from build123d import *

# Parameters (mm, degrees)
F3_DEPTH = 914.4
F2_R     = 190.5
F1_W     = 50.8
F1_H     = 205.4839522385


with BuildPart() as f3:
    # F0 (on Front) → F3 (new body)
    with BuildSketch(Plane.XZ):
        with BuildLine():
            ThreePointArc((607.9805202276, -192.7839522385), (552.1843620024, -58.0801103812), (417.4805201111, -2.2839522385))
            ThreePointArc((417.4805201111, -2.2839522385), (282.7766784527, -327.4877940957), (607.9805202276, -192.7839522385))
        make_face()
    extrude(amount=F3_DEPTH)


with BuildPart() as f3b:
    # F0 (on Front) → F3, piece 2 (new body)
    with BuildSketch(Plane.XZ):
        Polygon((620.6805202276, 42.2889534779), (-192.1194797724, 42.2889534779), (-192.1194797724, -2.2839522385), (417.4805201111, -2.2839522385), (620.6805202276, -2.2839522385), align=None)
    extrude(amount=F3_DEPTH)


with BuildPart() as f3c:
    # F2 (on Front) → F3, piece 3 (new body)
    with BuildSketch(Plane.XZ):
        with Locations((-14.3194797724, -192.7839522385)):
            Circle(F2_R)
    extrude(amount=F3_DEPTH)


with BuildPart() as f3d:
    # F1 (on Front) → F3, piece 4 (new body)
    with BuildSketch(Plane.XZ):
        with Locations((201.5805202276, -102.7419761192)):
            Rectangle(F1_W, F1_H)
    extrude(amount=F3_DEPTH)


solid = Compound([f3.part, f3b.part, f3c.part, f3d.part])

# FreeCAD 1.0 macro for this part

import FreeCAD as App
import Part
import Sketcher

V = App.Vector
Q = App.Units.Quantity


def add_polygon(sketch, points):
    """Adds a closed chain of lines whose ends are joined by coincident constraints."""
    first, n = sketch.GeometryCount, len(points)
    for a, b in zip(points, points[1:] + points[:1]):
        sketch.addGeometry(Part.LineSegment(App.Vector(*a, 0), App.Vector(*b, 0)), False)
    for i in range(n):
        sketch.addConstraint(Sketcher.Constraint("Coincident", first + i, 2, first + (i + 1) % n, 1))

doc = App.newDocument("Part")
body = doc.addObject("PartDesign::Body", "Body")

sketch1 = body.newObject("Sketcher::SketchObject", "Sketch")
sketch1.AttachmentSupport = (doc.getObject("XZ_Plane"), [""])
sketch1.MapMode = "FlatFace"
sketch1.addGeometry(Part.Circle(V(417, -193, 0), V(0, 0, 1), 190), False)
sketch1.addConstraint([
    Sketcher.Constraint("Diameter", 0, Q("15 in")),
    Sketcher.Constraint("DistanceX", -1, 1, 0, 3, 417.48052),
    Sketcher.Constraint("DistanceY", 0, 3, -1, 1, 192.783952),
])
pad1 = body.newObject("PartDesign::Pad", "Pad")
pad1.Profile = sketch1
pad1.Length = Q("36 in")
body2 = doc.addObject("PartDesign::Body", "Body001")

sketch2 = body2.newObject("Sketcher::SketchObject", "Sketch001")
sketch2.AttachmentSupport = (doc.getObject("XZ_Plane001"), [""])
sketch2.MapMode = "FlatFace"
add_polygon(sketch2, [(621, 42), (-192, 42), (-192, -2), (621, -2)])
sketch2.addConstraint([
    Sketcher.Constraint("Horizontal", 0),
    Sketcher.Constraint("Vertical", 1),
    Sketcher.Constraint("Horizontal", 2),
    Sketcher.Constraint("Vertical", 3),
    Sketcher.Constraint("DistanceX", 0, 2, 0, 1, Q("32 in")),
    Sketcher.Constraint("DistanceY", 1, 2, 1, 1, 44.572906),
    Sketcher.Constraint("DistanceX", 0, 2, -1, 1, 192.11948),
    Sketcher.Constraint("DistanceY", -1, 1, 0, 2, 42.288953),
])
pad2 = body2.newObject("PartDesign::Pad", "Pad001")
pad2.Profile = sketch2
pad2.Length = Q("36 in")
body3 = doc.addObject("PartDesign::Body", "Body002")

sketch3 = body3.newObject("Sketcher::SketchObject", "Sketch002")
sketch3.AttachmentSupport = (doc.getObject("XZ_Plane002"), [""])
sketch3.MapMode = "FlatFace"
sketch3.addGeometry(Part.Circle(V(-14, -193, 0), V(0, 0, 1), 190), False)
sketch3.addConstraint([
    Sketcher.Constraint("Diameter", 0, Q("15 in")),
    Sketcher.Constraint("DistanceX", 0, 3, -1, 1, 14.31948),
    Sketcher.Constraint("DistanceY", 0, 3, -1, 1, 192.783952),
])
pad3 = body3.newObject("PartDesign::Pad", "Pad002")
pad3.Profile = sketch3
pad3.Length = Q("36 in")
body4 = doc.addObject("PartDesign::Body", "Body003")

sketch4 = body4.newObject("Sketcher::SketchObject", "Sketch003")
sketch4.AttachmentSupport = (doc.getObject("XZ_Plane003"), [""])
sketch4.MapMode = "FlatFace"
add_polygon(sketch4, [(176, 0), (176, -205), (227, -205), (227, 0)])
sketch4.addConstraint([
    Sketcher.Constraint("Vertical", 0),
    Sketcher.Constraint("Horizontal", 1),
    Sketcher.Constraint("Vertical", 2),
    Sketcher.Constraint("Horizontal", 3),
    Sketcher.Constraint("PointOnObject", 2, 2, -1),
    Sketcher.Constraint("DistanceX", 1, 1, 1, 2, Q("2 in")),
    Sketcher.Constraint("DistanceY", 0, 2, 0, 1, 205.483952),
    Sketcher.Constraint("DistanceX", -1, 1, 0, 2, 176.18052),
])
pad4 = body4.newObject("PartDesign::Pad", "Pad003")
pad4.Profile = sketch4
pad4.Length = Q("36 in")

doc.recompute()
